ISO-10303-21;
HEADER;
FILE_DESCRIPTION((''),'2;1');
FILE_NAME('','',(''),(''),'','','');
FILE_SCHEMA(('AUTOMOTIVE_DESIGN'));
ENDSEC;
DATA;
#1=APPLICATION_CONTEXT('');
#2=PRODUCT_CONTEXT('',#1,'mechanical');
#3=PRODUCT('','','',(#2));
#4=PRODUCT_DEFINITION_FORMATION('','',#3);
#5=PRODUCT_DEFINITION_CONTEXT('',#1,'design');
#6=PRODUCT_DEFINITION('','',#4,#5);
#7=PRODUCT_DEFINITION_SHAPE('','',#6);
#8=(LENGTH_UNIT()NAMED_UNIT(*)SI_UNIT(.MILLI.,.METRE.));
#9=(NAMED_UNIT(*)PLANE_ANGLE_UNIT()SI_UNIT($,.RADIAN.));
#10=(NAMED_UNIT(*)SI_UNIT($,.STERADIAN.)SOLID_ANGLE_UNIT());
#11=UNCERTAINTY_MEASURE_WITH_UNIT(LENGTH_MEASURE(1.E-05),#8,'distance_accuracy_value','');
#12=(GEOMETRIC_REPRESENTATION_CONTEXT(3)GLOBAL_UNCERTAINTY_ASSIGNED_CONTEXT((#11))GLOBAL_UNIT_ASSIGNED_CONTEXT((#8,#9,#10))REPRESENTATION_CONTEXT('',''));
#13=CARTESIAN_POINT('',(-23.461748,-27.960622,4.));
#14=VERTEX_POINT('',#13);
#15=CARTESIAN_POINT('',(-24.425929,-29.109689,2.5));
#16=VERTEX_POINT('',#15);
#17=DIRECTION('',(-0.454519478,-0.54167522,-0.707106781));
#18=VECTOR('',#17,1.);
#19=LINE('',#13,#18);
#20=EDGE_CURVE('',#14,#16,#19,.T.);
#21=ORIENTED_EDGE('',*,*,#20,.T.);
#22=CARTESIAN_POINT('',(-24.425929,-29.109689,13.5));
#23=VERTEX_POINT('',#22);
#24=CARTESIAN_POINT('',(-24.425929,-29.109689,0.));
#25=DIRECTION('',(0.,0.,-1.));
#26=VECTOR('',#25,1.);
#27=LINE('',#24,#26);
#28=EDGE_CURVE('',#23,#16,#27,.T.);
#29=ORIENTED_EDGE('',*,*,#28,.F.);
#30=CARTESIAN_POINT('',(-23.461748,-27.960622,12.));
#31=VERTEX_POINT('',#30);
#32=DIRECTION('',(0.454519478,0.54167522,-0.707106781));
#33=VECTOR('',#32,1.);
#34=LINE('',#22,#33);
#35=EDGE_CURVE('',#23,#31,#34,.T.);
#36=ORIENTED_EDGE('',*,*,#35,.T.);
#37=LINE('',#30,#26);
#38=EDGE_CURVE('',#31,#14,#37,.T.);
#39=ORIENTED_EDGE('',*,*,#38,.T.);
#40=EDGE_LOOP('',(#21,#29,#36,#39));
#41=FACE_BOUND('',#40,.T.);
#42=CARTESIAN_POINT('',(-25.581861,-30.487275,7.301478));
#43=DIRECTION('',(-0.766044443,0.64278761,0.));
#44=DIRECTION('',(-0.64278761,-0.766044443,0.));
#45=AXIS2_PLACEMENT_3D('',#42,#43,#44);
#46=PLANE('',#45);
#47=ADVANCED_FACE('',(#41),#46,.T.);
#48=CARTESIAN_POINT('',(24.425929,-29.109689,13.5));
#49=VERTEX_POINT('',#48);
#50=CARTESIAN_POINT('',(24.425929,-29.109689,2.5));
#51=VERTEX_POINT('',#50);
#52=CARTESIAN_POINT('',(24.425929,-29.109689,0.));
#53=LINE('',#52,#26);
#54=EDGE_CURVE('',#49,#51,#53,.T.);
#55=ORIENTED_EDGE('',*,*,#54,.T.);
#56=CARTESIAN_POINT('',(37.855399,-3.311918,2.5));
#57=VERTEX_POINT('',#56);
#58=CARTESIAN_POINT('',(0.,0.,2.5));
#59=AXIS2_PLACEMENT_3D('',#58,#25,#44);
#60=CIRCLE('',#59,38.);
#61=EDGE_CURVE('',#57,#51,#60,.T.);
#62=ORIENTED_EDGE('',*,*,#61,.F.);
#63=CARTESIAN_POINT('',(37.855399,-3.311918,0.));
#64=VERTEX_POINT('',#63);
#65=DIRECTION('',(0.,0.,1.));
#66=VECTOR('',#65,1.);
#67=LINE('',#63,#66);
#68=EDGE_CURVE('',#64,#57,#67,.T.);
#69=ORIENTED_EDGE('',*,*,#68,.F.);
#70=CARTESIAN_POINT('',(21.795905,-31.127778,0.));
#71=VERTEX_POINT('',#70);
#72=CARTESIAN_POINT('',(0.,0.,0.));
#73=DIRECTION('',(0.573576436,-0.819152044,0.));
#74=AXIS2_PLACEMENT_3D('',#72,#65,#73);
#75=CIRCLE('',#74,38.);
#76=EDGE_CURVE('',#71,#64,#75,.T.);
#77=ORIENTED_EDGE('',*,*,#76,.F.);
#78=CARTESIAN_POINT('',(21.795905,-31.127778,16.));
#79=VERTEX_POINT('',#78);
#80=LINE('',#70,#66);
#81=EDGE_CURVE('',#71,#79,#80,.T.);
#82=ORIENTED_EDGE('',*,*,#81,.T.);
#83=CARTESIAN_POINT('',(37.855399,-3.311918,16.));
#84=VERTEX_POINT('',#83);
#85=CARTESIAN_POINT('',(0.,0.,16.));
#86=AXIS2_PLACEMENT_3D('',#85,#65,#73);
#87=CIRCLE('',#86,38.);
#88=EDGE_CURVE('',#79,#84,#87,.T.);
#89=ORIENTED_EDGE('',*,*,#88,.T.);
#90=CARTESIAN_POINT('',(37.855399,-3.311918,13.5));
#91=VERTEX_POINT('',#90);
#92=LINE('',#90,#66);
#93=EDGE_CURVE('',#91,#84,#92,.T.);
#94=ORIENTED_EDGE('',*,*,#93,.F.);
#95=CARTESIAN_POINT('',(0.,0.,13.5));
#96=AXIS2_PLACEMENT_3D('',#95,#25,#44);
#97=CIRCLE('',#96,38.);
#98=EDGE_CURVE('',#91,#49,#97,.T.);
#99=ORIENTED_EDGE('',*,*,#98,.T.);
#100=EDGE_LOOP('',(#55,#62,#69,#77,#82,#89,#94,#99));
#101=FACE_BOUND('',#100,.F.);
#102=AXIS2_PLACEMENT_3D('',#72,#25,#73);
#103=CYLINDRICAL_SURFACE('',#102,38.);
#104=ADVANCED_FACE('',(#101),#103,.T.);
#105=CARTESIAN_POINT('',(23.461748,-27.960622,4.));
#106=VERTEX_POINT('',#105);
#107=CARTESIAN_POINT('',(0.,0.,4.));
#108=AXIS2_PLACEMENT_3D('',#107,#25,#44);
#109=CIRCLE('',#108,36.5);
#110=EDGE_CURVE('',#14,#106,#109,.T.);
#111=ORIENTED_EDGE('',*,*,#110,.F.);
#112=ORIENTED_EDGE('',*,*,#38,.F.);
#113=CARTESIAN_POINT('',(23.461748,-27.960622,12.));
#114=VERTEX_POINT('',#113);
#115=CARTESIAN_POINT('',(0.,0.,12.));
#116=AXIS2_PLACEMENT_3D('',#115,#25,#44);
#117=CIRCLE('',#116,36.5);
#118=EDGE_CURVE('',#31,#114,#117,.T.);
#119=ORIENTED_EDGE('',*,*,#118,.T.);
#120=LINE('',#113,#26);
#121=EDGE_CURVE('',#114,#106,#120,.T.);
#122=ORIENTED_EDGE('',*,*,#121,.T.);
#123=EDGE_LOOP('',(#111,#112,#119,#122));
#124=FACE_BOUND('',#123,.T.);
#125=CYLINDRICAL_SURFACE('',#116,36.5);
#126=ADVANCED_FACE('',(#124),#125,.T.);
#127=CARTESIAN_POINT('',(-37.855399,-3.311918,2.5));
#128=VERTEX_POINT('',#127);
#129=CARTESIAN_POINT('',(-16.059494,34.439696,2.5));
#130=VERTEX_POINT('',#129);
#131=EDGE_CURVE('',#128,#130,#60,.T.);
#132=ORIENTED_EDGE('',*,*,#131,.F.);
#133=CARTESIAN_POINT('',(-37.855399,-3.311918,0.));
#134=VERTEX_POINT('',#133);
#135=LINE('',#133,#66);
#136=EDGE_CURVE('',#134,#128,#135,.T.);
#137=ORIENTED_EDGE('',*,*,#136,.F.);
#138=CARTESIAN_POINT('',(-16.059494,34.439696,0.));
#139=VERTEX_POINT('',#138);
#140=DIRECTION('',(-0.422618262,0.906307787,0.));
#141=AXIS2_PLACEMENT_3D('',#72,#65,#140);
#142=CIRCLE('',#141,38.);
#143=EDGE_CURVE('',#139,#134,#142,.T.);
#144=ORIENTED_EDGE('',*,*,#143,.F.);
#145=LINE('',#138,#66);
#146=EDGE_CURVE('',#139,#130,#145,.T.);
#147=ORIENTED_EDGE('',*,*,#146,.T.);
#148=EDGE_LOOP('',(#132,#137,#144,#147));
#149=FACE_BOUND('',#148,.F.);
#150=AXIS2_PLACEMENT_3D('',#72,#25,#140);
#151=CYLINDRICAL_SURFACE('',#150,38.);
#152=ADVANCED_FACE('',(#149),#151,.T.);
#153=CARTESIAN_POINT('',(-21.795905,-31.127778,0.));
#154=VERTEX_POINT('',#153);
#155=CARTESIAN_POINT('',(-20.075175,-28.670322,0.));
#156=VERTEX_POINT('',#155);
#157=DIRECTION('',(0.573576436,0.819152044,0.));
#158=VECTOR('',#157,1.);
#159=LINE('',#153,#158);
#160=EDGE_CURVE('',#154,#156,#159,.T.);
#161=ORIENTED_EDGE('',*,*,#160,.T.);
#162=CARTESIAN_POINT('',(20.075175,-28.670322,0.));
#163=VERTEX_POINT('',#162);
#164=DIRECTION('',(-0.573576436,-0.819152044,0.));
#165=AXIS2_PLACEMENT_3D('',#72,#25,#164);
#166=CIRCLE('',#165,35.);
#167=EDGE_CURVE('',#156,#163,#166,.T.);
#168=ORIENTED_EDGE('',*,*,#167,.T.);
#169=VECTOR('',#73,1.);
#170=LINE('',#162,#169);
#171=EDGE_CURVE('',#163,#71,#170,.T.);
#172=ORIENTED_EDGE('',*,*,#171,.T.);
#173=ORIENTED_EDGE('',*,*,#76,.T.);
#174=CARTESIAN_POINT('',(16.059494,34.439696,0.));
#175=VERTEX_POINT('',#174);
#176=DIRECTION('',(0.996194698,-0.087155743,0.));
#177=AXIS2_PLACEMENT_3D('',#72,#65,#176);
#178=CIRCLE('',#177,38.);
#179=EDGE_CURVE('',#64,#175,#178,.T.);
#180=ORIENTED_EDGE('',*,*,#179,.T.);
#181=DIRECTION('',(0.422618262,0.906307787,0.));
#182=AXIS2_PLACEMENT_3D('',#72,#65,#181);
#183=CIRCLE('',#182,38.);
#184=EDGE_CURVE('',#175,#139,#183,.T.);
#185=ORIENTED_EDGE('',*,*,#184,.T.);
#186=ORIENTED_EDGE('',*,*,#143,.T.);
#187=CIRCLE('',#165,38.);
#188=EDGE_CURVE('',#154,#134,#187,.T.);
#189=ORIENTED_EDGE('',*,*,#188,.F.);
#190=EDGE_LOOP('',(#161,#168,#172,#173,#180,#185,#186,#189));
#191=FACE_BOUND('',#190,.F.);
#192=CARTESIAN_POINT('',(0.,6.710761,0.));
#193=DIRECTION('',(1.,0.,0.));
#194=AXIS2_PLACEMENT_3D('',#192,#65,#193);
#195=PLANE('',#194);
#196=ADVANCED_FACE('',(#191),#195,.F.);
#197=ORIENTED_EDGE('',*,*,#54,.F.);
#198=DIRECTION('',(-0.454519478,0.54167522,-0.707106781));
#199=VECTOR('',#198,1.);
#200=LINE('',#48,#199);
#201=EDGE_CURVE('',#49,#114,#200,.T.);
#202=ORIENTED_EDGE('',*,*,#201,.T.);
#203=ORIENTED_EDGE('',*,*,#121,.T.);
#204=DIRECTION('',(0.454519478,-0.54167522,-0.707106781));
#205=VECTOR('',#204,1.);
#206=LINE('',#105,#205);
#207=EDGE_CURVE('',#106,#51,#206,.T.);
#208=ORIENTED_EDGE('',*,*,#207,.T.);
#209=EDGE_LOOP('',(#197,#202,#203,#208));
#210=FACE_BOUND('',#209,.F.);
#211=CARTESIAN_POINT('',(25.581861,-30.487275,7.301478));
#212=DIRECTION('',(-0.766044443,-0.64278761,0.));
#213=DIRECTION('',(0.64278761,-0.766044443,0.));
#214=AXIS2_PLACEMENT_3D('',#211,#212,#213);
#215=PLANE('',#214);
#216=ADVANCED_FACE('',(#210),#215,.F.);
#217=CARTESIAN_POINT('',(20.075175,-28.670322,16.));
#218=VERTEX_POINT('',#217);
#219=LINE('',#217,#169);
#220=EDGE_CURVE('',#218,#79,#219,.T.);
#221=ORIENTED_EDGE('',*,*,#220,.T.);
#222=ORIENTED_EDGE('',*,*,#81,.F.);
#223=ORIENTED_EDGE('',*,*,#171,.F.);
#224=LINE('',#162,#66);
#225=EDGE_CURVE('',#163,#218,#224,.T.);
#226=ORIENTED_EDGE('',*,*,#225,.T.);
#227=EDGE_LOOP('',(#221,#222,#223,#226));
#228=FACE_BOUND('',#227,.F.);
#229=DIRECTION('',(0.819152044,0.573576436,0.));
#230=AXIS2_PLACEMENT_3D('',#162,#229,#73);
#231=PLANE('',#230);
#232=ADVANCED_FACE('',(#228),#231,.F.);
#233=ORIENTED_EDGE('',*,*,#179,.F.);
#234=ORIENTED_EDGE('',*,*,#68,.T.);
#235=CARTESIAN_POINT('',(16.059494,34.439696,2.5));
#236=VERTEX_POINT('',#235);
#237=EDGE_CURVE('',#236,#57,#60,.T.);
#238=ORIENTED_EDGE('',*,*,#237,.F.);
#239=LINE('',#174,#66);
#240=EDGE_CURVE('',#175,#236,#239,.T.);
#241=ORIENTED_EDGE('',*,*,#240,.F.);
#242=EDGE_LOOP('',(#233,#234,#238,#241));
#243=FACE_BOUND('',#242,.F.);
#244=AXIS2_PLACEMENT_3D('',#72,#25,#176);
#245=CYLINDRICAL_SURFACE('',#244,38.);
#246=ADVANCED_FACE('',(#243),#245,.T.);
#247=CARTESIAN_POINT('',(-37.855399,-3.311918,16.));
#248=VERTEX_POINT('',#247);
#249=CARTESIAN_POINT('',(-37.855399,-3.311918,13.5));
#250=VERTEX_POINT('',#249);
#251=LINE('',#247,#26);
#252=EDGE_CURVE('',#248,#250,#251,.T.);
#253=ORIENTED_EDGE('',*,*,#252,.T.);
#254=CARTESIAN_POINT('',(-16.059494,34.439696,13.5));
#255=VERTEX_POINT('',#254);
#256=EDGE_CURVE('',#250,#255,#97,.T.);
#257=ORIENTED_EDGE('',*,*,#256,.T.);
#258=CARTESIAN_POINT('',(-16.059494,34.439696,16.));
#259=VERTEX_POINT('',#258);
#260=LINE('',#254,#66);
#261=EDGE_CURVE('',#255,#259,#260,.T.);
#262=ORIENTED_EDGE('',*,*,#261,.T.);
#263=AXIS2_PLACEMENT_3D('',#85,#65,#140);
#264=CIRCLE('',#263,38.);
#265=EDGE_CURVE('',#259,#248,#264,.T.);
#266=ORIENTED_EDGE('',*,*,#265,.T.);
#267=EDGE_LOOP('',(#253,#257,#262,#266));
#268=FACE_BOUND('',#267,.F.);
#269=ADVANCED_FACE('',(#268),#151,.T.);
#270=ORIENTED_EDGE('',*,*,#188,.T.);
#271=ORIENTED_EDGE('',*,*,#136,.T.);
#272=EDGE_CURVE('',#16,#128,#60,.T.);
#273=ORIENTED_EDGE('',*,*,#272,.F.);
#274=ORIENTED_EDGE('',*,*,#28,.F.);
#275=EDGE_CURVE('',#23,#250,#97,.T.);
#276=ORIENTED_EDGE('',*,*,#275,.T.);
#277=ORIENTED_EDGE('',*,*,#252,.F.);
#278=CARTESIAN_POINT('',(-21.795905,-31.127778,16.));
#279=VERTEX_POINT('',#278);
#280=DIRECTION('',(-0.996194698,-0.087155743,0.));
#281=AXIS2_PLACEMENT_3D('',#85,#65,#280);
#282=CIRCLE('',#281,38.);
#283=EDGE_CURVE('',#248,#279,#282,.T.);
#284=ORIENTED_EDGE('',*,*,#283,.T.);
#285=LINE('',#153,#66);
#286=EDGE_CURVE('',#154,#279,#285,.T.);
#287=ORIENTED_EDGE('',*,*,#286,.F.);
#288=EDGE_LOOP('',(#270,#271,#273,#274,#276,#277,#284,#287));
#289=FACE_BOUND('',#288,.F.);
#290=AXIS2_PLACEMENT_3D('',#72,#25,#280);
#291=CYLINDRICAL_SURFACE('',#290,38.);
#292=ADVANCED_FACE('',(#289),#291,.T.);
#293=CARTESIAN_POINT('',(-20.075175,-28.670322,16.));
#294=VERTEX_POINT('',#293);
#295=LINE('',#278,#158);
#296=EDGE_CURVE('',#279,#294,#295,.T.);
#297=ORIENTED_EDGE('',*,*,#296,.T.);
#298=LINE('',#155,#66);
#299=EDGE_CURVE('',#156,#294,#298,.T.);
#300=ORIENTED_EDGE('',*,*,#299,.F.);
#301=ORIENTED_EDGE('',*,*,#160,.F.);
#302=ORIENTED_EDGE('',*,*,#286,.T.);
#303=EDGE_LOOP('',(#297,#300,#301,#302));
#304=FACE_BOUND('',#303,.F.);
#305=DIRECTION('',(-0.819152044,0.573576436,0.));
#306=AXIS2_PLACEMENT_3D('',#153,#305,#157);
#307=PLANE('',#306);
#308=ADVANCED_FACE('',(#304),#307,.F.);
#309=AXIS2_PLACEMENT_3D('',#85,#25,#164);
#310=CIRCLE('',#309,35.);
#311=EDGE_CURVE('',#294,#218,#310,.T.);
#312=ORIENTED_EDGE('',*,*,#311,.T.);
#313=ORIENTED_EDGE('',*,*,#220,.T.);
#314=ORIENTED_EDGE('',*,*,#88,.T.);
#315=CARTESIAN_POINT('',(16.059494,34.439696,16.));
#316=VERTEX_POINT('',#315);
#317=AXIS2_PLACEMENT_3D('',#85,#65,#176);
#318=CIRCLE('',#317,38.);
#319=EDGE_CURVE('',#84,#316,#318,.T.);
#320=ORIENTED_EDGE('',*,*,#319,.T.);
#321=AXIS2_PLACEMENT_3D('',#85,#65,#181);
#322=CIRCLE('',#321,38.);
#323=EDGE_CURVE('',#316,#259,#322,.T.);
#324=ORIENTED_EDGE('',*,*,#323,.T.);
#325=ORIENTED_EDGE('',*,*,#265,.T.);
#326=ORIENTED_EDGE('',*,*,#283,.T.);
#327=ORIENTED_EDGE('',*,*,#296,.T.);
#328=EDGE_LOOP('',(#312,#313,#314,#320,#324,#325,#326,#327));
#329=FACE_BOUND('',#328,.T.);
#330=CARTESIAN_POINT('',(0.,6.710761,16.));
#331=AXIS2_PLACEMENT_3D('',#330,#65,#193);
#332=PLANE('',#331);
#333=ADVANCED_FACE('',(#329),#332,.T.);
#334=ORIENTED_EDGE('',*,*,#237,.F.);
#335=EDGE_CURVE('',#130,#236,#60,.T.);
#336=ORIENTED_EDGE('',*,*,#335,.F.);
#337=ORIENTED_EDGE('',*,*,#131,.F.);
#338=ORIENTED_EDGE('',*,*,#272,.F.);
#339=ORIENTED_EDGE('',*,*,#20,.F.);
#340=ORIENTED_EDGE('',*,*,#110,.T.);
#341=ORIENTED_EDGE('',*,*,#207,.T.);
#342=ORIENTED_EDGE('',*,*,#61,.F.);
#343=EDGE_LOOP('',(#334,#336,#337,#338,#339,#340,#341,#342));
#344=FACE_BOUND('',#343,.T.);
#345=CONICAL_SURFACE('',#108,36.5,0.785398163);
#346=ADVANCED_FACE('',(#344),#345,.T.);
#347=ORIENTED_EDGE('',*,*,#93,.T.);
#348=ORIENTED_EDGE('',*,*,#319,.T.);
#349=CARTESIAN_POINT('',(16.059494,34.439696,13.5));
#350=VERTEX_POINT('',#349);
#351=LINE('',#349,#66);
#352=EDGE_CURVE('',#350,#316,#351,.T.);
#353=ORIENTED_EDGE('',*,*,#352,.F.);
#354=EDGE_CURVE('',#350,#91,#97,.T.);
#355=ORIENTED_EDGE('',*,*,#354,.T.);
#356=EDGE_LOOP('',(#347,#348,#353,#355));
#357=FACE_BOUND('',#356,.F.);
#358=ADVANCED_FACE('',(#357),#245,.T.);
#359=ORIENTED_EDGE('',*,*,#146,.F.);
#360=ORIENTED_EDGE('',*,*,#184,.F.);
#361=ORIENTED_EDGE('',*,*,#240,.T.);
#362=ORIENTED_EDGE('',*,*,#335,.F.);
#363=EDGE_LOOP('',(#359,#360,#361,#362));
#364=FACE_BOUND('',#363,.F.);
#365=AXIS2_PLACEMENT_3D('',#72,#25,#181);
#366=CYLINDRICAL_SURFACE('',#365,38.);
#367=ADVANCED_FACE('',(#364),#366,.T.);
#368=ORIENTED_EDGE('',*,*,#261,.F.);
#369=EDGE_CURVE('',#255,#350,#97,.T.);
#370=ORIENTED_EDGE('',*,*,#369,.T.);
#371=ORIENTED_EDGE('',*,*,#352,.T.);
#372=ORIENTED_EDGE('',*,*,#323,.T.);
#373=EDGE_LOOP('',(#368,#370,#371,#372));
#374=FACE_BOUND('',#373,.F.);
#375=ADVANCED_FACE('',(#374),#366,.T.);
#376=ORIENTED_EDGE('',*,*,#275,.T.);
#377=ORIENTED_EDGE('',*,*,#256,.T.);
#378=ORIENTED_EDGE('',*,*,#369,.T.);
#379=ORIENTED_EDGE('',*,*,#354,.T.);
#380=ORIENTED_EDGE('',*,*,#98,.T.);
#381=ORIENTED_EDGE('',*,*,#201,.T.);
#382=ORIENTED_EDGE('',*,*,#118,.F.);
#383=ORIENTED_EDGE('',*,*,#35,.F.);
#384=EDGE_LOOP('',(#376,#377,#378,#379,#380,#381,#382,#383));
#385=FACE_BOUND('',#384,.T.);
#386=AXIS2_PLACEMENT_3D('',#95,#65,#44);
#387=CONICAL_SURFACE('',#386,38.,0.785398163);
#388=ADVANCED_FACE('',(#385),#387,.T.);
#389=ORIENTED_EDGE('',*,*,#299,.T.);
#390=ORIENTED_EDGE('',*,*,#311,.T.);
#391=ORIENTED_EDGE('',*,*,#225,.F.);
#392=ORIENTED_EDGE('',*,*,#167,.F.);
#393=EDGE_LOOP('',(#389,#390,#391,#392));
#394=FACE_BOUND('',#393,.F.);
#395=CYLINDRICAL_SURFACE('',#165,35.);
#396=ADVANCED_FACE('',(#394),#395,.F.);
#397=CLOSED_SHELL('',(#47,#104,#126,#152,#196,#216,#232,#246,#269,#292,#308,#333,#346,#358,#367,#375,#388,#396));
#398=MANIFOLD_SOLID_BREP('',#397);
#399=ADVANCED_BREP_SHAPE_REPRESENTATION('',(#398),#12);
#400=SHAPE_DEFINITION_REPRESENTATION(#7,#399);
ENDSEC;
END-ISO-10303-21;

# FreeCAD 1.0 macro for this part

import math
import FreeCAD as App
import Part
import Sketcher
Q = App.Units.Quantity

doc = App.newDocument("Part")
body = doc.addObject("PartDesign::Body", "Body")

# Sketch on XY plane
sketch1 = doc.addObject("Sketcher::SketchObject", "Sketch")
body.addObject(sketch1)
sketch1.AttachmentSupport = (doc.XY_Plane, [""])
sketch1.MapMode = "FlatFace"
sketch1.addGeometry([
    Part.LineSegment(App.Vector(20.1, -28.7, 0), App.Vector(21.8, -31.1, 0)),  # 0
    Part.ArcOfCircle(Part.Circle(App.Vector(0, 0, 0), App.Vector(0, 0, 1), 38), math.radians(-55), math.radians(-5)),  # 1
    Part.ArcOfCircle(Part.Circle(App.Vector(0, 0, 0), App.Vector(0, 0, 1), 38), math.radians(-5), math.radians(65)),  # 2
    Part.ArcOfCircle(Part.Circle(App.Vector(0, 0, 0), App.Vector(0, 0, 1), 38), math.radians(65), math.radians(115)),  # 3
    Part.ArcOfCircle(Part.Circle(App.Vector(0, 0, 0), App.Vector(0, 0, 1), 38), math.radians(115), math.radians(185)),  # 4
    Part.ArcOfCircle(Part.Circle(App.Vector(0, 0, 0), App.Vector(0, 0, 1), 38), math.radians(-175), math.radians(-125)),  # 5
    Part.LineSegment(App.Vector(-21.8, -31.1, 0), App.Vector(-20.1, -28.7, 0)),  # 6
    Part.ArcOfCircle(Part.Circle(App.Vector(0, 0, 0), App.Vector(0, 0, 1), 35), math.radians(-55), math.radians(235)),  # 7
], False)
sketch1.addConstraint([
    Sketcher.Constraint("Coincident", 0, 2, 1, 1),
    Sketcher.Constraint("Tangent", 1, 2, 2, 1),
    Sketcher.Constraint("Tangent", 2, 2, 3, 1),
    Sketcher.Constraint("Tangent", 3, 2, 4, 1),
    Sketcher.Constraint("Tangent", 4, 2, 5, 1),
    Sketcher.Constraint("Coincident", 5, 2, 6, 1),
    Sketcher.Constraint("Coincident", 6, 2, 7, 2),
    Sketcher.Constraint("Coincident", 7, 1, 0, 1),
    Sketcher.Constraint("Coincident", 1, 3, -1, 1),
    Sketcher.Constraint("Coincident", 3, 3, -1, 1),
    Sketcher.Constraint("Coincident", 5, 3, -1, 1),
    Sketcher.Constraint("Coincident", 7, 3, -1, 1),
    Sketcher.Constraint("Horizontal", 2, 2, 3, 2),
    Sketcher.Constraint("Horizontal", 1, 2, 4, 2),
    Sketcher.Constraint("Horizontal", 0, 2, 5, 2),
    Sketcher.Constraint("Horizontal", 6, 2, 7, 1),
    Sketcher.Constraint("Radius", 1, Q("38 mm")),
    Sketcher.Constraint("Radius", 7, Q("35 mm")),
    Sketcher.Constraint("Angle", 0, Q("-55 deg")),
    Sketcher.Constraint("DistanceX", -1, 1, 1, 2, Q("37.855399 mm")),
    Sketcher.Constraint("DistanceY", 6, 2, -1, 1, Q("28.670322 mm")),
    Sketcher.Constraint("DistanceX", -1, 1, 2, 2, Q("16.059494 mm")),
])
pad1 = doc.addObject("PartDesign::Pad", "Pad")
body.addObject(pad1)
pad1.Profile = sketch1
pad1.Length = 16

# Sketch on an angled plane
sketch2 = doc.addObject("Sketcher::SketchObject", "Sketch001")
body.addObject(sketch2)
sketch2.Placement = App.Placement(App.Vector(0, 0, 0), App.Rotation(App.Vector(-0.64278761, -0.766044443, 0), App.Vector(0, 0, 1), App.Vector(-0.766044443, 0.64278761, 0), "ZXY"))
sketch2.addGeometry([
    Part.LineSegment(App.Vector(42.5, 14.6, 0), App.Vector(38, 14.5, 0)),  # 0
    Part.LineSegment(App.Vector(38, 14.5, 0), App.Vector(38, 13.5, 0)),  # 1
    Part.LineSegment(App.Vector(38, 13.5, 0), App.Vector(36.5, 12, 0)),  # 2
    Part.LineSegment(App.Vector(36.5, 12, 0), App.Vector(36.5, 4, 0)),  # 3
    Part.LineSegment(App.Vector(36.5, 4, 0), App.Vector(38, 2.5, 0)),  # 4
    Part.LineSegment(App.Vector(38, 2.5, 0), App.Vector(38, 0, 0)),  # 5
    Part.LineSegment(App.Vector(38, 0, 0), App.Vector(42.5, 0, 0)),  # 6
    Part.LineSegment(App.Vector(42.5, 0, 0), App.Vector(42.5, 14.6, 0)),  # 7
], False)
sketch2.addConstraint([
    Sketcher.Constraint("Coincident", 0, 2, 1, 1),
    Sketcher.Constraint("Coincident", 1, 2, 2, 1),
    Sketcher.Constraint("Coincident", 2, 2, 3, 1),
    Sketcher.Constraint("Coincident", 3, 2, 4, 1),
    Sketcher.Constraint("Coincident", 4, 2, 5, 1),
    Sketcher.Constraint("Coincident", 5, 2, 6, 1),
    Sketcher.Constraint("Coincident", 6, 2, 7, 1),
    Sketcher.Constraint("Coincident", 7, 2, 0, 1),
    Sketcher.Constraint("Vertical", 1),
    Sketcher.Constraint("Vertical", 3),
    Sketcher.Constraint("Vertical", 5),
    Sketcher.Constraint("Horizontal", 6),
    Sketcher.Constraint("Vertical", 7),
    Sketcher.Constraint("PointOnObject", 5, 2, -1),
    Sketcher.Constraint("Perpendicular", 2, 4),
    Sketcher.Constraint("Vertical", 1, 2, 4, 2),
    Sketcher.Constraint("Equal", 2, 4),
    Sketcher.Constraint("DistanceY", 3, 2, 3, 1, Q("8 mm")),
    Sketcher.Constraint("DistanceY", 5, 2, 5, 1, Q("2.5 mm")),
    Sketcher.Constraint("DistanceX", -1, 1, 0, 2, Q("38 mm")),
    Sketcher.Constraint("DistanceY", -1, 1, 2, 2, Q("12 mm")),
    Sketcher.Constraint("DistanceY", 0, 2, 7, 2, Q("0.170601 mm")),
    Sketcher.Constraint("DistanceX", 6, 1, 6, 2, Q("4.490854 mm")),
    Sketcher.Constraint("DistanceY", 1, 2, 1, 1, Q("0.970466 mm")),
])
groove = doc.addObject("PartDesign::Groove", "Groove")
body.addObject(groove)
groove.Profile = sketch2
groove.ReferenceAxis = (sketch2, ["V_Axis"])
groove.Angle = 280
groove.Reversed = True

doc.recompute()
